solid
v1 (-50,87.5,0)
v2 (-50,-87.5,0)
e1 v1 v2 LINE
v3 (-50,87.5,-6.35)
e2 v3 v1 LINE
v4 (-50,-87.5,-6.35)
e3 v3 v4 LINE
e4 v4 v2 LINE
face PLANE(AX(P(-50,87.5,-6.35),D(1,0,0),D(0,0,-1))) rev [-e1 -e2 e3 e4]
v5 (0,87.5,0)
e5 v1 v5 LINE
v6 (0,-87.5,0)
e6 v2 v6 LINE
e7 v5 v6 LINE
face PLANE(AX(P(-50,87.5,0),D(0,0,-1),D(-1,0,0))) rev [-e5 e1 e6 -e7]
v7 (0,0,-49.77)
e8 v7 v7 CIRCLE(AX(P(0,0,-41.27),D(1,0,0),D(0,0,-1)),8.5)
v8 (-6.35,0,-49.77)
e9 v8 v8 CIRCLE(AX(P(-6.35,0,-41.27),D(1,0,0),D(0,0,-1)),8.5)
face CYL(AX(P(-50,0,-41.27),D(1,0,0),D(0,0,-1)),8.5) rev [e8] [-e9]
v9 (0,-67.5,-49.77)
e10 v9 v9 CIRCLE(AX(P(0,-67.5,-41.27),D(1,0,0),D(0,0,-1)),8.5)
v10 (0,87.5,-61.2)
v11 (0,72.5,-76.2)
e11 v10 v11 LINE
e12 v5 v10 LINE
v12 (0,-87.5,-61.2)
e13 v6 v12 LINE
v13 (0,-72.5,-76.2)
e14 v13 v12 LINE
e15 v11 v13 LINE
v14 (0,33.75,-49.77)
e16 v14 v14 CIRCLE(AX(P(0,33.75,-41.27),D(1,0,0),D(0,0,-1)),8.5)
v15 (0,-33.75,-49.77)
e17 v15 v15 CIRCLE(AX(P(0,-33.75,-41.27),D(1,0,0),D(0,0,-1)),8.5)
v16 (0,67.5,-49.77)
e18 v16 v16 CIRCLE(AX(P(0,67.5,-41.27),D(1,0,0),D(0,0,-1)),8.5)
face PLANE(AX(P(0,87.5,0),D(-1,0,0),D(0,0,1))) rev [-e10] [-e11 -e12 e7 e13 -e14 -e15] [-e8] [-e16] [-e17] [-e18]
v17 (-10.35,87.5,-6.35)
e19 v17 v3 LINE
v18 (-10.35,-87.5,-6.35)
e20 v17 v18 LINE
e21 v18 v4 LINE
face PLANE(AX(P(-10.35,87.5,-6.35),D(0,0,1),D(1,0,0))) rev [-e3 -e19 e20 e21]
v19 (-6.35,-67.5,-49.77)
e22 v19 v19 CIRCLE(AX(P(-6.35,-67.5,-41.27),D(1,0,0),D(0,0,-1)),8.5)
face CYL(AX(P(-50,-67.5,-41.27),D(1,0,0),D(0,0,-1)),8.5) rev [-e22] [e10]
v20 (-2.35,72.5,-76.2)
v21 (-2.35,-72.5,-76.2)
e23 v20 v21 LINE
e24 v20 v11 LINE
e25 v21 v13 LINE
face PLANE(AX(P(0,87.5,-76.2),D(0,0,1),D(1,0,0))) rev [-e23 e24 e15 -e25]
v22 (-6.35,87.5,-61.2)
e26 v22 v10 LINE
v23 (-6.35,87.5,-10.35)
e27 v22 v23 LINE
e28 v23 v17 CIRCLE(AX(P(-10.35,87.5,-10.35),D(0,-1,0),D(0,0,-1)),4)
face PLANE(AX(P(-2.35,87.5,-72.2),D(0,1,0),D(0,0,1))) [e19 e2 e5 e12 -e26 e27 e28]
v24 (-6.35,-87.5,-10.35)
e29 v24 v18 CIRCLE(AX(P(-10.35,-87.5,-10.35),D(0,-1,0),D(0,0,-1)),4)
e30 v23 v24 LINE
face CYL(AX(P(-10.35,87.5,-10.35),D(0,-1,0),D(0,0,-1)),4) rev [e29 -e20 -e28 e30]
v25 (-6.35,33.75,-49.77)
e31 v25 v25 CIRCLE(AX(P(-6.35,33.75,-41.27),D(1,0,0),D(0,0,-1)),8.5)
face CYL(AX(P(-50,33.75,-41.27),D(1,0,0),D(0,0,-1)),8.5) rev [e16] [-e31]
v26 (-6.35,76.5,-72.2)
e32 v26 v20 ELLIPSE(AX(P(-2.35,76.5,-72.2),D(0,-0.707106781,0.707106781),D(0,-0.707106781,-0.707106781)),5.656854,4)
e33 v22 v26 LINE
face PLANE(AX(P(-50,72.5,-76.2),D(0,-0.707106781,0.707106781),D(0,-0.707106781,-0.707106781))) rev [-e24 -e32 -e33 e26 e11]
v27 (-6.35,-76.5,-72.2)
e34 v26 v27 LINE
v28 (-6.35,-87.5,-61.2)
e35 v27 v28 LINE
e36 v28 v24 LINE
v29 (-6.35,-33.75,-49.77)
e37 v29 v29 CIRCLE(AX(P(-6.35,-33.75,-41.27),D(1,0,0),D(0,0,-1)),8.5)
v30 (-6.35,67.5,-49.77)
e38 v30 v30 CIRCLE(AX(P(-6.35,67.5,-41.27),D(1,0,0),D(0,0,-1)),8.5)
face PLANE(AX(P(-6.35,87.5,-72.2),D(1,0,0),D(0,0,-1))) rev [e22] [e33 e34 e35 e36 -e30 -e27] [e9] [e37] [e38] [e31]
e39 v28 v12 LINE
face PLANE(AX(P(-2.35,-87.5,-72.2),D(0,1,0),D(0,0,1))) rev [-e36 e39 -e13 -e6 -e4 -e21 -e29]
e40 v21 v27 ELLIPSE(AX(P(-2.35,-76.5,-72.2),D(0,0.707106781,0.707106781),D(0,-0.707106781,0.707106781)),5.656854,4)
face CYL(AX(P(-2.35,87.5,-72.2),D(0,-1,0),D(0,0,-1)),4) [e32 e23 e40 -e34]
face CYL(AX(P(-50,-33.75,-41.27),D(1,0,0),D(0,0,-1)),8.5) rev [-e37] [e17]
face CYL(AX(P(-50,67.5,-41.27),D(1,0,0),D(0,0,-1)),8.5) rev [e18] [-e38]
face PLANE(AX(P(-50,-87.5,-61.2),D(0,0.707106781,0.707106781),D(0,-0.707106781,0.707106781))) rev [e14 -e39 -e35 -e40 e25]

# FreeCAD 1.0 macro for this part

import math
import FreeCAD as App
import Part
import Sketcher

doc = App.newDocument("Part")
body = doc.addObject("PartDesign::Body", "Body")

# Sketch on XZ plane
sketch1 = body.newObject("Sketcher::SketchObject", "Sketch")
sketch1.AttachmentSupport = (doc.getObject("XZ_Plane"), [""])
sketch1.MapMode = "FlatFace"
sketch1.addGeometry(Part.LineSegment(App.Vector(-50, 0, 0), App.Vector(0, 0, 0)), False)
sketch1.addGeometry(Part.LineSegment(App.Vector(0, 0, 0), App.Vector(0, -76.2, 0)), False)
sketch1.addGeometry(Part.LineSegment(App.Vector(0, -76.2, 0), App.Vector(-2.35, -76.2, 0)), False)
sketch1.addGeometry(Part.ArcOfCircle(Part.Circle(App.Vector(-2.35, -72.2, 0), App.Vector(0, 0, 1), 4), math.radians(180), math.radians(270)), False)
sketch1.addGeometry(Part.LineSegment(App.Vector(-6.35, -72.2, 0), App.Vector(-6.35, -10.35, 0)), False)
sketch1.addGeometry(Part.ArcOfCircle(Part.Circle(App.Vector(-10.35, -10.35, 0), App.Vector(0, 0, 1), 4), math.radians(0), math.radians(90)), False)
sketch1.addGeometry(Part.LineSegment(App.Vector(-10.35, -6.35, 0), App.Vector(-50, -6.35, 0)), False)
sketch1.addGeometry(Part.LineSegment(App.Vector(-50, -6.35, 0), App.Vector(-50, 0, 0)), False)
sketch1.addConstraint(Sketcher.Constraint("Coincident", 0, 2, 1, 1))
sketch1.addConstraint(Sketcher.Constraint("Coincident", 1, 2, 2, 1))
sketch1.addConstraint(Sketcher.Constraint("Tangent", 2, 2, 3, 2))
sketch1.addConstraint(Sketcher.Constraint("Tangent", 3, 1, 4, 1))
sketch1.addConstraint(Sketcher.Constraint("Tangent", 4, 2, 5, 1))
sketch1.addConstraint(Sketcher.Constraint("Tangent", 5, 2, 6, 1))
sketch1.addConstraint(Sketcher.Constraint("Coincident", 6, 2, 7, 1))
sketch1.addConstraint(Sketcher.Constraint("Coincident", 7, 2, 0, 1))
sketch1.addConstraint(Sketcher.Constraint("Horizontal", 0))
sketch1.addConstraint(Sketcher.Constraint("Vertical", 1))
sketch1.addConstraint(Sketcher.Constraint("Horizontal", 2))
sketch1.addConstraint(Sketcher.Constraint("Vertical", 4))
sketch1.addConstraint(Sketcher.Constraint("Horizontal", 6))
sketch1.addConstraint(Sketcher.Constraint("Vertical", 7))
sketch1.addConstraint(Sketcher.Constraint("Coincident", 0, 2, -1, 1))
sketch1.addConstraint(Sketcher.Constraint("Equal", 3, 5))
sketch1.addConstraint(Sketcher.Constraint("Radius", 3, 4.0))
sketch1.addConstraint(Sketcher.Constraint("DistanceX", 0, 1, 0, 2, 50.0))
sketch1.addConstraint(Sketcher.Constraint("DistanceY", 1, 2, 1, 1, 76.2))
sketch1.addConstraint(Sketcher.Constraint("DistanceX", 2, 2, 2, 1, 2.35))
sketch1.addConstraint(Sketcher.Constraint("DistanceY", 4, 1, 4, 2, 61.85))
pad1 = body.newObject("PartDesign::Pad", "Pad")
pad1.Profile = sketch1
pad1.Length = 175
pad1.Midplane = True

# Sketch on YZ plane
sketch2 = body.newObject("Sketcher::SketchObject", "Sketch001")
sketch2.AttachmentSupport = (doc.getObject("YZ_Plane"), [""])
sketch2.MapMode = "FlatFace"
sketch2.addGeometry(Part.Circle(App.Vector(67.5, -41.27, 0), App.Vector(0, 0, 1), 8.5), False)
sketch2.addGeometry(Part.Circle(App.Vector(33.75, -41.27, 0), App.Vector(0, 0, 1), 8.5), False)
sketch2.addGeometry(Part.Circle(App.Vector(0, -41.27, 0), App.Vector(0, 0, 1), 8.5), False)
sketch2.addGeometry(Part.Circle(App.Vector(-33.75, -41.27, 0), App.Vector(0, 0, 1), 8.5), False)
sketch2.addGeometry(Part.Circle(App.Vector(-67.5, -41.27, 0), App.Vector(0, 0, 1), 8.5), False)
sketch2.addGeometry(Part.LineSegment(App.Vector(87.5, -76.2, 0), App.Vector(87.5, -61.2, 0)), False)
sketch2.addGeometry(Part.LineSegment(App.Vector(87.5, -61.2, 0), App.Vector(72.5, -76.2, 0)), False)
sketch2.addGeometry(Part.LineSegment(App.Vector(72.5, -76.2, 0), App.Vector(87.5, -76.2, 0)), False)
sketch2.addGeometry(Part.LineSegment(App.Vector(-87.5, -76.2, 0), App.Vector(-72.5, -76.2, 0)), False)
sketch2.addGeometry(Part.LineSegment(App.Vector(-72.5, -76.2, 0), App.Vector(-87.5, -61.2, 0)), False)
sketch2.addGeometry(Part.LineSegment(App.Vector(-87.5, -61.2, 0), App.Vector(-87.5, -76.2, 0)), False)
sketch2.addConstraint(Sketcher.Constraint("Coincident", 5, 2, 6, 1))
sketch2.addConstraint(Sketcher.Constraint("Coincident", 6, 2, 7, 1))
sketch2.addConstraint(Sketcher.Constraint("Coincident", 7, 2, 5, 1))
sketch2.addConstraint(Sketcher.Constraint("Coincident", 8, 2, 9, 1))
sketch2.addConstraint(Sketcher.Constraint("Coincident", 9, 2, 10, 1))
sketch2.addConstraint(Sketcher.Constraint("Coincident", 10, 2, 8, 1))
sketch2.addConstraint(Sketcher.Constraint("Vertical", 5))
sketch2.addConstraint(Sketcher.Constraint("Horizontal", 7))
sketch2.addConstraint(Sketcher.Constraint("Horizontal", 8))
sketch2.addConstraint(Sketcher.Constraint("Vertical", 10))
sketch2.addConstraint(Sketcher.Constraint("Equal", 0, 1))
sketch2.addConstraint(Sketcher.Constraint("Equal", 1, 2))
sketch2.addConstraint(Sketcher.Constraint("Equal", 2, 3))
sketch2.addConstraint(Sketcher.Constraint("Equal", 3, 4))
sketch2.addConstraint(Sketcher.Constraint("Symmetric", 1, 3, 3, 3, -2))
sketch2.addConstraint(Sketcher.Constraint("Symmetric", 0, 3, 4, 3, -2))
sketch2.addConstraint(Sketcher.Constraint("Symmetric", 6, 2, 8, 2, -2))
sketch2.addConstraint(Sketcher.Constraint("Symmetric", 5, 2, 9, 2, -2))
sketch2.addConstraint(Sketcher.Constraint("PointOnObject", 2, 3, -2))
sketch2.addConstraint(Sketcher.Constraint("Perpendicular", 6, 9))
sketch2.addConstraint(Sketcher.Constraint("Horizontal", 0, 3, 1, 3))
sketch2.addConstraint(Sketcher.Constraint("Horizontal", 1, 3, 2, 3))
sketch2.addConstraint(Sketcher.Constraint("Diameter", 0, 17.0))
sketch2.addConstraint(Sketcher.Constraint("DistanceX", 7, 1, 7, 2, 15.0))
sketch2.addConstraint(Sketcher.Constraint("DistanceX", 4, 3, 0, 3, 135.0))
sketch2.addConstraint(Sketcher.Constraint("DistanceX", 0, 3, 5, 2, 20.0))
sketch2.addConstraint(Sketcher.Constraint("DistanceY", 5, 2, -1, 1, 61.2))
sketch2.addConstraint(Sketcher.Constraint("DistanceX", 3, 3, 1, 3, 67.5))
sketch2.addConstraint(Sketcher.Constraint("DistanceY", 0, 3, -1, 1, 41.27))
pocket1 = body.newObject("PartDesign::Pocket", "Pocket")
pocket1.Profile = sketch2
pocket1.Type = "ThroughAll"

doc.recompute()
